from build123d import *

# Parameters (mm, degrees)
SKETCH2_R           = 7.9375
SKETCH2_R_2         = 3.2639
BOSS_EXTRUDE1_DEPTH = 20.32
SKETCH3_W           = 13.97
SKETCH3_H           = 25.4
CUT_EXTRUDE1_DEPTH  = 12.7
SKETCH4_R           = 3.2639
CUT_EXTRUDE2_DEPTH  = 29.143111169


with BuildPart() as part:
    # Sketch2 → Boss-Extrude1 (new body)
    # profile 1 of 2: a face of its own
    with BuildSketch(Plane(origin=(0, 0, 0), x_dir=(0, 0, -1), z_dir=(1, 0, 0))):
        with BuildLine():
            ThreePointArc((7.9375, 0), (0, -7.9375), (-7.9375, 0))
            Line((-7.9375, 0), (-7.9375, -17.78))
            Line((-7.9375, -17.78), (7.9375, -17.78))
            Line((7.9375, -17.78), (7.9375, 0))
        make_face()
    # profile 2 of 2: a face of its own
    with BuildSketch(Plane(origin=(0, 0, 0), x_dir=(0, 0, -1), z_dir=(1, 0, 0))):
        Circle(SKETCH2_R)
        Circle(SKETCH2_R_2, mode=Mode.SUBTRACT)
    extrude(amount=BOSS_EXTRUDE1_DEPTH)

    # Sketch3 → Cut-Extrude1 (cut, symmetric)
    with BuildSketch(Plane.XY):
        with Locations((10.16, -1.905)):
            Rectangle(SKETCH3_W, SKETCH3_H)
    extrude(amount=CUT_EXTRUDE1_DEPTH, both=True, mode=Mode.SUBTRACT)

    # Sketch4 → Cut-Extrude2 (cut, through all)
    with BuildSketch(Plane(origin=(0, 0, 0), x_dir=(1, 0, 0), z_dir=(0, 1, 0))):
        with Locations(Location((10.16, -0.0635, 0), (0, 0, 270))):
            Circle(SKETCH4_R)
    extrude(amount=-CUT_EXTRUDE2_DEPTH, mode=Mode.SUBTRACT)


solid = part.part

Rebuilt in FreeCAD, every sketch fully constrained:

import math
import FreeCAD as App
import Part
import Sketcher
from FreeCAD import Vector
Q = App.Units.Quantity

doc = App.newDocument("Part")
body = doc.addObject("PartDesign::Body", "Body")

# Sketch on YZ plane
sketch1 = body.newObject("Sketcher::SketchObject", "Sketch")
sketch1.AttachmentSupport = (doc.getObject("YZ_Plane"), [""])
sketch1.MapMode = "FlatFace"
sketch1.addGeometry([
    Part.LineSegment(Vector(0, 7.9, 0), Vector(-17.8, 7.9, 0)),  # 0
    Part.LineSegment(Vector(-17.8, 7.9, 0), Vector(-17.8, -7.9, 0)),  # 1
    Part.LineSegment(Vector(-17.8, -7.9, 0), Vector(0, -7.9, 0)),  # 2
    Part.ArcOfCircle(Part.Circle(Vector(0, 0, 0), Vector(0, 0, 1), 7.9), math.radians(-90), math.radians(90)),  # 3
    Part.Circle(Vector(0, 0, 0), Vector(0, 0, 1), 3.3),  # 4
], False)
sketch1.addConstraint([
    Sketcher.Constraint("Coincident", 0, 2, 1, 1),
    Sketcher.Constraint("Coincident", 1, 2, 2, 1),
    Sketcher.Constraint("Tangent", 2, 2, 3, 1),
    Sketcher.Constraint("Tangent", 3, 2, 0, 1),
    Sketcher.Constraint("Horizontal", 0),
    Sketcher.Constraint("Vertical", 1),
    Sketcher.Constraint("Horizontal", 2),
    Sketcher.Constraint("Coincident", 3, 3, -1, 1),
    Sketcher.Constraint("Coincident", 4, 3, -1, 1),
    Sketcher.Constraint("Diameter", 4, Q("0.257 in")),
    Sketcher.Constraint("DistanceX", 0, 2, 0, 1, Q("0.7 in")),
    Sketcher.Constraint("Radius", 3, Q("0.3125 in")),
])
pad1 = body.newObject("PartDesign::Pad", "Pad")
pad1.Profile = sketch1
pad1.Length = Q("0.8 in")

# Sketch on XY plane
sketch2 = body.newObject("Sketcher::SketchObject", "Sketch001")
sketch2.AttachmentSupport = (doc.getObject("XY_Plane"), [""])
sketch2.MapMode = "FlatFace"
sketch2.addGeometry([
    Part.LineSegment(Vector(3, 11, 0), Vector(3, -15, 0)),
    Part.LineSegment(Vector(3, -15, 0), Vector(17, -15, 0)),
    Part.LineSegment(Vector(17, -15, 0), Vector(17, 11, 0)),
    Part.LineSegment(Vector(17, 11, 0), Vector(3, 11, 0)),
], False)
sketch2.addConstraint([
    Sketcher.Constraint("Coincident", 0, 2, 1, 1),
    Sketcher.Constraint("Coincident", 1, 2, 2, 1),
    Sketcher.Constraint("Coincident", 2, 2, 3, 1),
    Sketcher.Constraint("Coincident", 3, 2, 0, 1),
    Sketcher.Constraint("Vertical", 0),
    Sketcher.Constraint("Horizontal", 1),
    Sketcher.Constraint("Vertical", 2),
    Sketcher.Constraint("Horizontal", 3),
    Sketcher.Constraint("DistanceY", 0, 2, 0, 1, Q("1 in")),
    Sketcher.Constraint("DistanceX", 1, 1, 1, 2, Q("0.55 in")),
    Sketcher.Constraint("DistanceX", -1, 1, 0, 2, Q("0.125 in")),
    Sketcher.Constraint("DistanceY", 0, 2, -1, 1, Q("0.575 in")),
])
pocket1 = body.newObject("PartDesign::Pocket", "Pocket")
pocket1.Profile = sketch2
pocket1.Length = Q("1 in")
pocket1.Midplane = True

# Sketch on XZ plane
sketch3 = body.newObject("Sketcher::SketchObject", "Sketch002")
sketch3.AttachmentSupport = (doc.getObject("XZ_Plane"), [""])
sketch3.MapMode = "FlatFace"
sketch3.addGeometry(Part.Circle(Vector(10.2, 0.1, 0), Vector(0, 0, 1), 3.3), False)
sketch3.addConstraint([
    Sketcher.Constraint("Diameter", 0, Q("0.257 in")),
    Sketcher.Constraint("DistanceX", -1, 1, 0, 3, Q("0.4 in")),
    Sketcher.Constraint("DistanceY", -1, 1, 0, 3, Q("0.0025 in")),
])
pocket2 = body.newObject("PartDesign::Pocket", "Pocket001")
pocket2.Profile = sketch3
pocket2.Type = "ThroughAll"
pocket2.Reversed = True

doc.recompute()
